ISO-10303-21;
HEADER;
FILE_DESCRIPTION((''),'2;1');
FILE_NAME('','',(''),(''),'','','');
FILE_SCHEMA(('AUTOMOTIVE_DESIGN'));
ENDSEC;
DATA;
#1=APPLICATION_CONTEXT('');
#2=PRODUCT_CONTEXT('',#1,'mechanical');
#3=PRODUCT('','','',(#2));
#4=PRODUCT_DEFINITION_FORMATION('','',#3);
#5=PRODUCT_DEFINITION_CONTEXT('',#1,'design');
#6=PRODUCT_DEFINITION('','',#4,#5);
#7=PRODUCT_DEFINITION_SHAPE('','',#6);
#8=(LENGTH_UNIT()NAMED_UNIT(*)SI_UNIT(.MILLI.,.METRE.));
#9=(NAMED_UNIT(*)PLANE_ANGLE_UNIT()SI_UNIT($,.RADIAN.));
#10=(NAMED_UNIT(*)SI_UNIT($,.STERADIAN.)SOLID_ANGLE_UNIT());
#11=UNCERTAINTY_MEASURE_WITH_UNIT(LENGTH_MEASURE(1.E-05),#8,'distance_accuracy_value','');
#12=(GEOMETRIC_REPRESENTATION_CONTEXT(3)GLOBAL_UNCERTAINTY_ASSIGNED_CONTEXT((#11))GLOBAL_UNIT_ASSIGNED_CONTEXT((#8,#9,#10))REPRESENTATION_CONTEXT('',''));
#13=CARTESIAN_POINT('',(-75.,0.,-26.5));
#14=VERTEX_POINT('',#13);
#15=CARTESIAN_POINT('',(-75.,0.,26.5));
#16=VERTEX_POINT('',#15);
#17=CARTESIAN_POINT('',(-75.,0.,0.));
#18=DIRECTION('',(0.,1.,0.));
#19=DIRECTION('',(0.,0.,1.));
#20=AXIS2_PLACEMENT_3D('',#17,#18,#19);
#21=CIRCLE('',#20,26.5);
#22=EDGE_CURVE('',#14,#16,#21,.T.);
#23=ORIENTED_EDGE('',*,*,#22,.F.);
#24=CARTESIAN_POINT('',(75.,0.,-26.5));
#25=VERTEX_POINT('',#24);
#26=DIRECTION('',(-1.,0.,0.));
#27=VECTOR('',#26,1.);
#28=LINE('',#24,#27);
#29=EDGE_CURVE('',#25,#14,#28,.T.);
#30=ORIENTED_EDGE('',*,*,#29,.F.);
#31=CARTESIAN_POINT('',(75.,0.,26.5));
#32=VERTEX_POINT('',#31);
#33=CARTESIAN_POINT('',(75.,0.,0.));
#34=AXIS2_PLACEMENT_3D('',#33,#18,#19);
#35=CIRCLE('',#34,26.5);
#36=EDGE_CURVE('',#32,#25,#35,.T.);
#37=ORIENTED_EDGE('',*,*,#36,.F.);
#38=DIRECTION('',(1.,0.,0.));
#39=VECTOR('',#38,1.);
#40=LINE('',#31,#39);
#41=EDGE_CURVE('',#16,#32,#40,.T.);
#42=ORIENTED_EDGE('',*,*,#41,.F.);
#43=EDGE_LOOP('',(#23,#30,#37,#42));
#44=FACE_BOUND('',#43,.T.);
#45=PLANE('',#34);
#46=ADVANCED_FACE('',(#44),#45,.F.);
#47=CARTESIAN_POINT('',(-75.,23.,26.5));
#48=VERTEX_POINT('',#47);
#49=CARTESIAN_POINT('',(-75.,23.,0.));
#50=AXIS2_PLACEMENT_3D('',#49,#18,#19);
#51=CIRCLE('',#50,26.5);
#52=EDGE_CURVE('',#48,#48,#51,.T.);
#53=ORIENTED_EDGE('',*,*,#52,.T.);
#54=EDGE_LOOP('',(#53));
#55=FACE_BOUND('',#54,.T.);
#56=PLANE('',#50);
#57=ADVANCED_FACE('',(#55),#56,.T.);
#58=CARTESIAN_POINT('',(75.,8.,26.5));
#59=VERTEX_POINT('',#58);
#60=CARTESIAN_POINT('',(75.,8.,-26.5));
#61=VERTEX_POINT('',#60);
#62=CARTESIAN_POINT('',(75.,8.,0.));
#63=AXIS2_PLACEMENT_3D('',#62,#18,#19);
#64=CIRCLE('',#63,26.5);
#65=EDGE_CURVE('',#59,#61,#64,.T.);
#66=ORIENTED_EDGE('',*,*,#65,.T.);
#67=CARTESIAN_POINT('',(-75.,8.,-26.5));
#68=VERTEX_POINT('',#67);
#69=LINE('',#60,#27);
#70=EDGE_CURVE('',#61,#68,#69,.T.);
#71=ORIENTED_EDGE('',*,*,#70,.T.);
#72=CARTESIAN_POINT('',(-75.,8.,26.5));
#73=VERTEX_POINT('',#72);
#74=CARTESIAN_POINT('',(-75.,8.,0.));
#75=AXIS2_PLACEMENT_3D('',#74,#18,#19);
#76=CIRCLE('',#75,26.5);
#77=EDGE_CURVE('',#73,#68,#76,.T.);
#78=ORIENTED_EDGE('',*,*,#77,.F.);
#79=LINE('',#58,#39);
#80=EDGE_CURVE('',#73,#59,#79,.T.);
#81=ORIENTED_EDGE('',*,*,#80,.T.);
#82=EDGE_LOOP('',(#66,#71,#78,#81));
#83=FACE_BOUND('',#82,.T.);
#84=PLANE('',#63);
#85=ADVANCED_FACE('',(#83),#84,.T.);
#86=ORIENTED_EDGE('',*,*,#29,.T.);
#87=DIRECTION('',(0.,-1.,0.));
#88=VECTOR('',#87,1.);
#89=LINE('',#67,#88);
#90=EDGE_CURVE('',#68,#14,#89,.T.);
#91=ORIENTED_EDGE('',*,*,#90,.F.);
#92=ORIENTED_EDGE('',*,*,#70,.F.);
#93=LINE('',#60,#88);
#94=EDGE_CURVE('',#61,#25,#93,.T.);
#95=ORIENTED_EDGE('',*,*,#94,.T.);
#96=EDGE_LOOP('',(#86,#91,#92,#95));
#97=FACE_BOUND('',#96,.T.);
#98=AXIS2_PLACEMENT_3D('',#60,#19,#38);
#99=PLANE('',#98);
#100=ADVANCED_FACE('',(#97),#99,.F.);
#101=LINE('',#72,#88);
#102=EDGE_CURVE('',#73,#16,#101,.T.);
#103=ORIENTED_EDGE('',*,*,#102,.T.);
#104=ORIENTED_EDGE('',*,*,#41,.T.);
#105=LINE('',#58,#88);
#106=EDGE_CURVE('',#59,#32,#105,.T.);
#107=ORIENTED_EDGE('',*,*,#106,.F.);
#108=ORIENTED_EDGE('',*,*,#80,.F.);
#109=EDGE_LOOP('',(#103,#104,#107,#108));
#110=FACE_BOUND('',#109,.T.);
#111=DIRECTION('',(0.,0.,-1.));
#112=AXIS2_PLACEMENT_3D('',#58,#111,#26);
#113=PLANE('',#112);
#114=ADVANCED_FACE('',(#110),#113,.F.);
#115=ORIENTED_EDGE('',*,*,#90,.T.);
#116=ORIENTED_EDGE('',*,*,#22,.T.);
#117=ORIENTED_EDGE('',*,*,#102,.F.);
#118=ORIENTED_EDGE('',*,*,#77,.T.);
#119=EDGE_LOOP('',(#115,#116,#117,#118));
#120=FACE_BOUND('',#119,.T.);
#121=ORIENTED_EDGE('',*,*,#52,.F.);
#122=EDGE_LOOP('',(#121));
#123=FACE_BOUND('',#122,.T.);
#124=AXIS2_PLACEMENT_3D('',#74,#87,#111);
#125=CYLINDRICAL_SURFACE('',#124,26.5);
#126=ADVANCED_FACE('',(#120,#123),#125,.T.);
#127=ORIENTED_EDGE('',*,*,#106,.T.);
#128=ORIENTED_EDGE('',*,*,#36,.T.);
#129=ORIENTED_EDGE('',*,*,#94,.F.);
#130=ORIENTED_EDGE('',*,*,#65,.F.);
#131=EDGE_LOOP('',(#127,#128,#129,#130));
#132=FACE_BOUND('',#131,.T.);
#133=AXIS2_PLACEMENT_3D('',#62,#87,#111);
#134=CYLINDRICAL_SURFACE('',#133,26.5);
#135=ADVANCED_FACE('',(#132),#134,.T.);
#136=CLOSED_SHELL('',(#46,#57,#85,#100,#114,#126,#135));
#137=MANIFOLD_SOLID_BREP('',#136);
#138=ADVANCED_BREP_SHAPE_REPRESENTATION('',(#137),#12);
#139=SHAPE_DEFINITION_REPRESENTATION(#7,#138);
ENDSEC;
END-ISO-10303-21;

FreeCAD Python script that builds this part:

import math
import FreeCAD as App
import Part
import Sketcher

V = App.Vector

doc = App.newDocument("Part")
params = doc.addObject("Spreadsheet::Sheet", "Params")
for row, (alias, value) in enumerate([
    ("sketch1_radius", "26.5 mm"),
    ("sketch1_width", "150 mm"),
    ("pad1_length", "8 mm"),
    ("sketch2_diameter", "53 mm"),
    ("pad2_length", "15 mm"),
], start=1):
    params.set(f"A{row}", alias)
    params.set(f"B{row}", "=" + value)
    params.setAlias(f"B{row}", alias)

body = doc.addObject("PartDesign::Body", "Body")

# Sketch on XZ plane
sketch1 = body.newObject("Sketcher::SketchObject", "Sketch")
sketch1.AttachmentSupport = (doc.getObject("XZ_Plane"), [""])
sketch1.MapMode = "FlatFace"
sketch1.addGeometry(Part.LineSegment(V(-75, 26, 0), V(75, 26, 0)), False)
sketch1.addGeometry(Part.ArcOfCircle(Part.Circle(V(75, 0, 0), V(0, 0, 1), 26), math.radians(-90), math.radians(90)), False)
sketch1.addGeometry(Part.LineSegment(V(75, -26, 0), V(-75, -26, 0)), False)
sketch1.addGeometry(Part.ArcOfCircle(Part.Circle(V(-75, 0, 0), V(0, 0, 1), 26), math.radians(90), math.radians(270)), False)
sketch1.addConstraint(Sketcher.Constraint("Tangent", 0, 2, 1, 2))
sketch1.addConstraint(Sketcher.Constraint("Tangent", 1, 1, 2, 1))
sketch1.addConstraint(Sketcher.Constraint("Tangent", 2, 2, 3, 2))
sketch1.addConstraint(Sketcher.Constraint("Tangent", 3, 1, 0, 1))
sketch1.addConstraint(Sketcher.Constraint("Horizontal", 0))
sketch1.addConstraint(Sketcher.Constraint("Horizontal", 2))
sketch1.addConstraint(Sketcher.Constraint("Symmetric", 1, 3, 3, 3, -1, 1))
sketch1.addConstraint(Sketcher.Constraint("Radius", 1, 26.5))
sketch1.addConstraint(Sketcher.Constraint("DistanceX", 0, 1, 0, 2, 150.0))
sketch1.setExpression("Constraints[7]", "Params.sketch1_radius")
sketch1.setExpression("Constraints[8]", "Params.sketch1_width")
pad1 = body.newObject("PartDesign::Pad", "Pad")
pad1.Profile = sketch1
pad1.setExpression("Length", "Params.pad1_length")
pad1.Reversed = True

# Sketch on XZ plane
sketch2 = body.newObject("Sketcher::SketchObject", "Sketch001")
sketch2.AttachmentSupport = (doc.getObject("XZ_Plane"), [""])
sketch2.MapMode = "FlatFace"
sketch2.AttachmentOffset = App.Placement(V(0, 0, -8), App.Rotation())
sketch2.addGeometry(Part.Circle(V(-75, 0, 0), V(0, 0, 1), 26), False)
sketch2.addConstraint(Sketcher.Constraint("PointOnObject", 0, 3, -1))
sketch2.addConstraint(Sketcher.Constraint("Diameter", 0, 53.0))
sketch2.addConstraint(Sketcher.Constraint("DistanceX", 0, 3, -1, 1, 75.0))
sketch2.setExpression("Constraints[1]", "Params.sketch2_diameter")
pad2 = body.newObject("PartDesign::Pad", "Pad001")
pad2.Profile = sketch2
pad2.setExpression("Length", "Params.pad2_length")
pad2.Reversed = True

doc.recompute()
